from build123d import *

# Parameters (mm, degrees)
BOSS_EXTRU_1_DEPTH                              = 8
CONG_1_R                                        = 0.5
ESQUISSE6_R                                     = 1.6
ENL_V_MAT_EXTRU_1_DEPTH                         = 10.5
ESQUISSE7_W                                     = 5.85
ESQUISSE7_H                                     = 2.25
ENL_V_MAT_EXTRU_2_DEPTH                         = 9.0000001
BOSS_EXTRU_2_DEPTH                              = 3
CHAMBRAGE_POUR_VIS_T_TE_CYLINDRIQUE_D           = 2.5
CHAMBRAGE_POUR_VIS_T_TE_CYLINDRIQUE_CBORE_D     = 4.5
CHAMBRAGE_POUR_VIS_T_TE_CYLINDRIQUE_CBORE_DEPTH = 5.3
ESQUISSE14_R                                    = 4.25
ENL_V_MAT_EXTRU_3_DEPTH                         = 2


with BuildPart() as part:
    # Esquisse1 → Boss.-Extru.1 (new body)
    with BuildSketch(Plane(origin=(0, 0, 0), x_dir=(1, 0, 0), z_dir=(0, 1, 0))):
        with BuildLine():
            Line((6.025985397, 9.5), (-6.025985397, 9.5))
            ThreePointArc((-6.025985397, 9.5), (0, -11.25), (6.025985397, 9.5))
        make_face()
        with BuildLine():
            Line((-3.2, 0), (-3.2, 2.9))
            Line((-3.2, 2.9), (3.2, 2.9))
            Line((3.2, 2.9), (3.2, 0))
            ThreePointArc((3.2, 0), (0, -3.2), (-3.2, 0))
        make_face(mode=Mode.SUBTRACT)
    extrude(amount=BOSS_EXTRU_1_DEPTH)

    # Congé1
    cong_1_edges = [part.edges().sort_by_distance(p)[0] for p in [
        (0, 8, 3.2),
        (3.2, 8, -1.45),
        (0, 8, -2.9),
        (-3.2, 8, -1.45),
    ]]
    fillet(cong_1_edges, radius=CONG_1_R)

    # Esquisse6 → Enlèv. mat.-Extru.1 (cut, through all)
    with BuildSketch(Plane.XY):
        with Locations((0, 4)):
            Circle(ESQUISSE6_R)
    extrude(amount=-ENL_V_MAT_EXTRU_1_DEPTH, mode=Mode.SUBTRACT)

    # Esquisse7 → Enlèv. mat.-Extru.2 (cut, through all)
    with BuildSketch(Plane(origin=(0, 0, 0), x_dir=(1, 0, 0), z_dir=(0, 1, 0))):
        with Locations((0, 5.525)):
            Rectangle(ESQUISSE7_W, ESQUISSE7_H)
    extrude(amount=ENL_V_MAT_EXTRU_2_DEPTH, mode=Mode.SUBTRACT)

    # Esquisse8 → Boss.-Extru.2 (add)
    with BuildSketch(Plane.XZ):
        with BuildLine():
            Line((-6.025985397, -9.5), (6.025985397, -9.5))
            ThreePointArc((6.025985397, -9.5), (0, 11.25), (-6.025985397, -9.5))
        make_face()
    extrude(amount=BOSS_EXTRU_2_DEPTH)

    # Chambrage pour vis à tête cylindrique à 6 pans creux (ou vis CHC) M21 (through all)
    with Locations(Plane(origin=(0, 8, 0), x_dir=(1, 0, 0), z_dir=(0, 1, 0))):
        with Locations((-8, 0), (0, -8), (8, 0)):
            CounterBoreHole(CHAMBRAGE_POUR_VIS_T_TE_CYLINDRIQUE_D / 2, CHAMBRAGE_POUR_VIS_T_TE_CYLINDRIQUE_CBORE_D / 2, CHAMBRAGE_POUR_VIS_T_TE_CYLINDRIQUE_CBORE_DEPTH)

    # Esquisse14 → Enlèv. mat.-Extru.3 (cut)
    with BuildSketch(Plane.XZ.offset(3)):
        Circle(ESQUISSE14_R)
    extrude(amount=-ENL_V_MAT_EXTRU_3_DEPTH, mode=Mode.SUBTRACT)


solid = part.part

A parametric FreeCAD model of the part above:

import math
import FreeCAD as App
import Part
import Sketcher

V = App.Vector
Q = App.Units.Quantity


def edges_at(feature, points):
    """Names of the edges that pass closest to the given points."""
    edges = feature.Shape.Edges
    near = lambda p: min(range(len(edges)), key=lambda i: edges[i].distToShape(Part.Vertex(*p))[0])
    return sorted({f"Edge{near(p) + 1}" for p in points})


def add_polygon(sketch, points):
    """Adds a closed chain of lines whose ends are joined by coincident constraints."""
    first, n = sketch.GeometryCount, len(points)
    for a, b in zip(points, points[1:] + points[:1]):
        sketch.addGeometry(Part.LineSegment(App.Vector(*a, 0), App.Vector(*b, 0)), False)
    for i in range(n):
        sketch.addConstraint(Sketcher.Constraint("Coincident", first + i, 2, first + (i + 1) % n, 1))

doc = App.newDocument("Part")
body = doc.addObject("PartDesign::Body", "Body")

# Sketch on XZ plane
sketch1 = doc.addObject("Sketcher::SketchObject", "Sketch")
body.addObject(sketch1)
sketch1.AttachmentSupport = (doc.XZ_Plane, [""])
sketch1.MapMode = "FlatFace"
sketch1.addGeometry([
    Part.LineSegment(V(6, -9.5, 0), V(-6, -9.5, 0)),  # 0
    Part.ArcOfCircle(Part.Circle(V(0, 0, 0), V(0, 0, 1), 11.2), math.radians(-58), math.radians(238)),  # 1
    Part.ArcOfCircle(Part.Circle(V(0, 0, 0), V(0, 0, 1), 3.2), math.radians(0), math.radians(180)),  # 2
    Part.LineSegment(V(-3.2, 0, 0), V(-3.2, -2.9, 0)),  # 3
    Part.LineSegment(V(-3.2, -2.9, 0), V(3.2, -2.9, 0)),  # 4
    Part.LineSegment(V(3.2, -2.9, 0), V(3.2, 0, 0)),  # 5
], False)
sketch1.addConstraint([
    Sketcher.Constraint("Coincident", 0, 1, 1, 1),
    Sketcher.Constraint("Coincident", 1, 2, 0, 2),
    Sketcher.Constraint("Tangent", 2, 2, 3, 1),
    Sketcher.Constraint("Coincident", 3, 2, 4, 1),
    Sketcher.Constraint("Coincident", 4, 2, 5, 1),
    Sketcher.Constraint("Tangent", 5, 2, 2, 1),
    Sketcher.Constraint("Horizontal", 0),
    Sketcher.Constraint("Vertical", 3),
    Sketcher.Constraint("Horizontal", 4),
    Sketcher.Constraint("Vertical", 5),
    Sketcher.Constraint("Coincident", 1, 3, -1, 1),
    Sketcher.Constraint("Coincident", 2, 3, -1, 1),
    Sketcher.Constraint("Radius", 2, Q("3.2 mm")),
    Sketcher.Constraint("Radius", 1, Q("11.25 mm")),
    Sketcher.Constraint("DistanceY", 3, 2, 3, 1, Q("2.9 mm")),
    Sketcher.Constraint("DistanceY", 0, 1, -1, 1, Q("9.5 mm")),
])
pad1 = doc.addObject("PartDesign::Pad", "Pad")
body.addObject(pad1)
pad1.Profile = sketch1
pad1.Length = 8
pad1.Reversed = True
doc.recompute()

fillet = doc.addObject("PartDesign::Fillet", "Fillet")
body.addObject(fillet)
fillet.Base = (pad1, edges_at(pad1, [
    (0, 8, 3.2),
    (3.2, 8, -1.45),
    (0, 8, -2.9),
    (-3.2, 8, -1.45),
]))
fillet.Radius = 0.5

# Sketch on XY plane
sketch2 = doc.addObject("Sketcher::SketchObject", "Sketch001")
body.addObject(sketch2)
sketch2.AttachmentSupport = (doc.XY_Plane, [""])
sketch2.MapMode = "FlatFace"
sketch2.addGeometry(Part.Circle(V(0, 4, 0), V(0, 0, 1), 1.6), False)
sketch2.addConstraint([
    Sketcher.Constraint("PointOnObject", 0, 3, -2),
    Sketcher.Constraint("Diameter", 0, Q("3.2 mm")),
    Sketcher.Constraint("DistanceY", -1, 1, 0, 3, Q("4 mm")),
])
pocket1 = doc.addObject("PartDesign::Pocket", "Pocket")
body.addObject(pocket1)
pocket1.Profile = sketch2
pocket1.Type = "ThroughAll"

# Sketch on XZ plane
sketch3 = doc.addObject("Sketcher::SketchObject", "Sketch002")
body.addObject(sketch3)
sketch3.AttachmentSupport = (doc.XZ_Plane, [""])
sketch3.MapMode = "FlatFace"
add_polygon(sketch3, [(-2.9, -6.7), (-2.9, -4.4), (2.9, -4.4), (2.9, -6.7)])  # lines 0-3
sketch3.addConstraint([
    Sketcher.Constraint("Vertical", 0),
    Sketcher.Constraint("Horizontal", 1),
    Sketcher.Constraint("Vertical", 2),
    Sketcher.Constraint("Horizontal", 3),
    Sketcher.Constraint("DistanceX", 1, 1, 1, 2, Q("5.85 mm")),
    Sketcher.Constraint("DistanceY", 0, 1, 0, 2, Q("2.25 mm")),
    Sketcher.Constraint("DistanceY", 0, 2, -1, 1, Q("4.4 mm")),
    Sketcher.Constraint("DistanceX", 0, 2, -1, 1, Q("2.925 mm")),
])
pocket2 = doc.addObject("PartDesign::Pocket", "Pocket001")
body.addObject(pocket2)
pocket2.Profile = sketch3
pocket2.Type = "ThroughAll"

# Sketch on XZ plane
sketch4 = doc.addObject("Sketcher::SketchObject", "Sketch003")
body.addObject(sketch4)
sketch4.AttachmentSupport = (doc.XZ_Plane, [""])
sketch4.MapMode = "FlatFace"
sketch4.addGeometry([
    Part.LineSegment(V(-6, -10, 0), V(6, -10, 0)),
    Part.ArcOfCircle(Part.Circle(V(0, 0, 0), V(0, 0, 1), 11), math.radians(-58), math.radians(238)),
], False)
sketch4.addConstraint([
    Sketcher.Constraint("Coincident", 0, 1, 1, 2),
    Sketcher.Constraint("Coincident", 1, 1, 0, 2),
    Sketcher.Constraint("Horizontal", 0),
    Sketcher.Constraint("Coincident", 1, 3, -1, 1),
    Sketcher.Constraint("Radius", 1, Q("11.25 mm")),
    Sketcher.Constraint("DistanceY", 0, 1, -1, 1, Q("9.5 mm")),
])
pad2 = doc.addObject("PartDesign::Pad", "Pad001")
body.addObject(pad2)
pad2.Profile = sketch4
pad2.Length = 3

# Sketch on XZ plane
sketch5 = doc.addObject("Sketcher::SketchObject", "Sketch004")
body.addObject(sketch5)
sketch5.AttachmentSupport = (doc.XZ_Plane, [""])
sketch5.MapMode = "FlatFace"
sketch5.AttachmentOffset = App.Placement(V(0, 0, -8), App.Rotation())
sketch5.addGeometry([
    Part.Circle(V(-8, 0, 0), V(0, 0, 1), 1.2),
    Part.Circle(V(0, 8, 0), V(0, 0, 1), 1.2),
    Part.Circle(V(8, 0, 0), V(0, 0, 1), 1.2),
], False)
sketch5.addConstraint([
    Sketcher.Constraint("Equal", 0, 1),
    Sketcher.Constraint("Equal", 1, 2),
    Sketcher.Constraint("Symmetric", 0, 3, 2, 3, -1, 1),
    Sketcher.Constraint("PointOnObject", 0, 3, -1),
    Sketcher.Constraint("PointOnObject", 1, 3, -2),
    Sketcher.Constraint("Diameter", 0, Q("2.5 mm")),
    Sketcher.Constraint("DistanceX", 0, 3, -1, 1, Q("8 mm")),
    Sketcher.Constraint("DistanceY", -1, 1, 1, 3, Q("8 mm")),
])
doc.recompute()
hole = doc.addObject("PartDesign::Hole", "Hole")
body.addObject(hole)
hole.Profile = sketch5
hole.ThreadType = "None"
hole.Diameter = 2.5
hole.DepthType = "ThroughAll"
hole.HoleCutType = "Counterbore"
hole.HoleCutDiameter = 4.5
hole.HoleCutDepth = 5.3
hole.Reversed = True

# Sketch on XZ plane
sketch6 = doc.addObject("Sketcher::SketchObject", "Sketch005")
body.addObject(sketch6)
sketch6.AttachmentSupport = (doc.XZ_Plane, [""])
sketch6.MapMode = "FlatFace"
sketch6.AttachmentOffset = App.Placement(V(0, 0, 3), App.Rotation())
sketch6.addGeometry(Part.Circle(V(0, 0, 0), V(0, 0, 1), 4.2), False)
sketch6.addConstraint([
    Sketcher.Constraint("Coincident", 0, 3, -1, 1),
    Sketcher.Constraint("Diameter", 0, Q("8.5 mm")),
])
pocket3 = doc.addObject("PartDesign::Pocket", "Pocket002")
body.addObject(pocket3)
pocket3.Profile = sketch6
pocket3.Length = 2

doc.recompute()
